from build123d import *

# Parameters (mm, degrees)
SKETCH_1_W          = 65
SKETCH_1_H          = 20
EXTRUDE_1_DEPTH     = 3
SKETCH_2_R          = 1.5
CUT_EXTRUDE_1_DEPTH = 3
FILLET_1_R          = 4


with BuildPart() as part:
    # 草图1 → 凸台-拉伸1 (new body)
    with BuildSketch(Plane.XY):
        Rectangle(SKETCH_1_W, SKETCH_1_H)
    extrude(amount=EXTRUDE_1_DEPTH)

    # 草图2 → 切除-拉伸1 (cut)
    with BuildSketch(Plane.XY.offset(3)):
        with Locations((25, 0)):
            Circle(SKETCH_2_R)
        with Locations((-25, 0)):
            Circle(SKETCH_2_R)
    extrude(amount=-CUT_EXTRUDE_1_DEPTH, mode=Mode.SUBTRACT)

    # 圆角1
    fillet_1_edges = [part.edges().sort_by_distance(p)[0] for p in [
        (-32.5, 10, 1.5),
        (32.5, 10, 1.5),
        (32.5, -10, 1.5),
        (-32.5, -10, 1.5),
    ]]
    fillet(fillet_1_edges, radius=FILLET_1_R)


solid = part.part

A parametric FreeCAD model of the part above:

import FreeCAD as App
import Part
import Sketcher

V = App.Vector
Q = App.Units.Quantity


def edges_at(feature, points):
    """Names of the edges that pass closest to the given points."""
    edges = feature.Shape.Edges
    near = lambda p: min(range(len(edges)), key=lambda i: edges[i].distToShape(Part.Vertex(*p))[0])
    return sorted({f"Edge{near(p) + 1}" for p in points})


def add_polygon(sketch, points):
    """Adds a closed chain of lines whose ends are joined by coincident constraints."""
    first, n = sketch.GeometryCount, len(points)
    for a, b in zip(points, points[1:] + points[:1]):
        sketch.addGeometry(Part.LineSegment(App.Vector(*a, 0), App.Vector(*b, 0)), False)
    for i in range(n):
        sketch.addConstraint(Sketcher.Constraint("Coincident", first + i, 2, first + (i + 1) % n, 1))

doc = App.newDocument("Part")
body = doc.addObject("PartDesign::Body", "Body")

# Sketch on XY plane
sketch1 = doc.addObject("Sketcher::SketchObject", "Sketch")
body.addObject(sketch1)
sketch1.AttachmentSupport = (doc.XY_Plane, [""])
sketch1.MapMode = "FlatFace"
add_polygon(sketch1, [(-32, 10), (-32, -10), (32, -10), (32, 10)])  # lines 0-3
sketch1.addConstraint([
    Sketcher.Constraint("Vertical", 0),
    Sketcher.Constraint("Horizontal", 1),
    Sketcher.Constraint("Vertical", 2),
    Sketcher.Constraint("Horizontal", 3),
    Sketcher.Constraint("Symmetric", 0, 2, 2, 2, -1, 1),
    Sketcher.Constraint("DistanceX", 1, 1, 1, 2, Q("65 mm")),
    Sketcher.Constraint("DistanceY", 0, 2, 0, 1, Q("20 mm")),
])
pad1 = doc.addObject("PartDesign::Pad", "Pad")
body.addObject(pad1)
pad1.Profile = sketch1
pad1.Length = 3

# Sketch on XY plane
sketch2 = doc.addObject("Sketcher::SketchObject", "Sketch001")
body.addObject(sketch2)
sketch2.AttachmentSupport = (doc.XY_Plane, [""])
sketch2.MapMode = "FlatFace"
sketch2.AttachmentOffset = App.Placement(V(0, 0, 3), App.Rotation())
sketch2.addGeometry([
    Part.Circle(V(25, 0, 0), V(0, 0, 1), 1.5),
    Part.Circle(V(-25, 0, 0), V(0, 0, 1), 1.5),
], False)
sketch2.addConstraint([
    Sketcher.Constraint("Equal", 0, 1),
    Sketcher.Constraint("Symmetric", 0, 3, 1, 3, -1, 1),
    Sketcher.Constraint("PointOnObject", 0, 3, -1),
    Sketcher.Constraint("Diameter", 0, Q("3 mm")),
    Sketcher.Constraint("DistanceX", -1, 1, 0, 3, Q("25 mm")),
])
pocket1 = doc.addObject("PartDesign::Pocket", "Pocket")
body.addObject(pocket1)
pocket1.Profile = sketch2
pocket1.Length = 3
doc.recompute()

fillet = doc.addObject("PartDesign::Fillet", "Fillet")
body.addObject(fillet)
fillet.Base = (pocket1, edges_at(pocket1, [
    (-32.5, 10, 1.5),
    (32.5, 10, 1.5),
    (32.5, -10, 1.5),
    (-32.5, -10, 1.5),
]))
fillet.Radius = 4

doc.recompute()
